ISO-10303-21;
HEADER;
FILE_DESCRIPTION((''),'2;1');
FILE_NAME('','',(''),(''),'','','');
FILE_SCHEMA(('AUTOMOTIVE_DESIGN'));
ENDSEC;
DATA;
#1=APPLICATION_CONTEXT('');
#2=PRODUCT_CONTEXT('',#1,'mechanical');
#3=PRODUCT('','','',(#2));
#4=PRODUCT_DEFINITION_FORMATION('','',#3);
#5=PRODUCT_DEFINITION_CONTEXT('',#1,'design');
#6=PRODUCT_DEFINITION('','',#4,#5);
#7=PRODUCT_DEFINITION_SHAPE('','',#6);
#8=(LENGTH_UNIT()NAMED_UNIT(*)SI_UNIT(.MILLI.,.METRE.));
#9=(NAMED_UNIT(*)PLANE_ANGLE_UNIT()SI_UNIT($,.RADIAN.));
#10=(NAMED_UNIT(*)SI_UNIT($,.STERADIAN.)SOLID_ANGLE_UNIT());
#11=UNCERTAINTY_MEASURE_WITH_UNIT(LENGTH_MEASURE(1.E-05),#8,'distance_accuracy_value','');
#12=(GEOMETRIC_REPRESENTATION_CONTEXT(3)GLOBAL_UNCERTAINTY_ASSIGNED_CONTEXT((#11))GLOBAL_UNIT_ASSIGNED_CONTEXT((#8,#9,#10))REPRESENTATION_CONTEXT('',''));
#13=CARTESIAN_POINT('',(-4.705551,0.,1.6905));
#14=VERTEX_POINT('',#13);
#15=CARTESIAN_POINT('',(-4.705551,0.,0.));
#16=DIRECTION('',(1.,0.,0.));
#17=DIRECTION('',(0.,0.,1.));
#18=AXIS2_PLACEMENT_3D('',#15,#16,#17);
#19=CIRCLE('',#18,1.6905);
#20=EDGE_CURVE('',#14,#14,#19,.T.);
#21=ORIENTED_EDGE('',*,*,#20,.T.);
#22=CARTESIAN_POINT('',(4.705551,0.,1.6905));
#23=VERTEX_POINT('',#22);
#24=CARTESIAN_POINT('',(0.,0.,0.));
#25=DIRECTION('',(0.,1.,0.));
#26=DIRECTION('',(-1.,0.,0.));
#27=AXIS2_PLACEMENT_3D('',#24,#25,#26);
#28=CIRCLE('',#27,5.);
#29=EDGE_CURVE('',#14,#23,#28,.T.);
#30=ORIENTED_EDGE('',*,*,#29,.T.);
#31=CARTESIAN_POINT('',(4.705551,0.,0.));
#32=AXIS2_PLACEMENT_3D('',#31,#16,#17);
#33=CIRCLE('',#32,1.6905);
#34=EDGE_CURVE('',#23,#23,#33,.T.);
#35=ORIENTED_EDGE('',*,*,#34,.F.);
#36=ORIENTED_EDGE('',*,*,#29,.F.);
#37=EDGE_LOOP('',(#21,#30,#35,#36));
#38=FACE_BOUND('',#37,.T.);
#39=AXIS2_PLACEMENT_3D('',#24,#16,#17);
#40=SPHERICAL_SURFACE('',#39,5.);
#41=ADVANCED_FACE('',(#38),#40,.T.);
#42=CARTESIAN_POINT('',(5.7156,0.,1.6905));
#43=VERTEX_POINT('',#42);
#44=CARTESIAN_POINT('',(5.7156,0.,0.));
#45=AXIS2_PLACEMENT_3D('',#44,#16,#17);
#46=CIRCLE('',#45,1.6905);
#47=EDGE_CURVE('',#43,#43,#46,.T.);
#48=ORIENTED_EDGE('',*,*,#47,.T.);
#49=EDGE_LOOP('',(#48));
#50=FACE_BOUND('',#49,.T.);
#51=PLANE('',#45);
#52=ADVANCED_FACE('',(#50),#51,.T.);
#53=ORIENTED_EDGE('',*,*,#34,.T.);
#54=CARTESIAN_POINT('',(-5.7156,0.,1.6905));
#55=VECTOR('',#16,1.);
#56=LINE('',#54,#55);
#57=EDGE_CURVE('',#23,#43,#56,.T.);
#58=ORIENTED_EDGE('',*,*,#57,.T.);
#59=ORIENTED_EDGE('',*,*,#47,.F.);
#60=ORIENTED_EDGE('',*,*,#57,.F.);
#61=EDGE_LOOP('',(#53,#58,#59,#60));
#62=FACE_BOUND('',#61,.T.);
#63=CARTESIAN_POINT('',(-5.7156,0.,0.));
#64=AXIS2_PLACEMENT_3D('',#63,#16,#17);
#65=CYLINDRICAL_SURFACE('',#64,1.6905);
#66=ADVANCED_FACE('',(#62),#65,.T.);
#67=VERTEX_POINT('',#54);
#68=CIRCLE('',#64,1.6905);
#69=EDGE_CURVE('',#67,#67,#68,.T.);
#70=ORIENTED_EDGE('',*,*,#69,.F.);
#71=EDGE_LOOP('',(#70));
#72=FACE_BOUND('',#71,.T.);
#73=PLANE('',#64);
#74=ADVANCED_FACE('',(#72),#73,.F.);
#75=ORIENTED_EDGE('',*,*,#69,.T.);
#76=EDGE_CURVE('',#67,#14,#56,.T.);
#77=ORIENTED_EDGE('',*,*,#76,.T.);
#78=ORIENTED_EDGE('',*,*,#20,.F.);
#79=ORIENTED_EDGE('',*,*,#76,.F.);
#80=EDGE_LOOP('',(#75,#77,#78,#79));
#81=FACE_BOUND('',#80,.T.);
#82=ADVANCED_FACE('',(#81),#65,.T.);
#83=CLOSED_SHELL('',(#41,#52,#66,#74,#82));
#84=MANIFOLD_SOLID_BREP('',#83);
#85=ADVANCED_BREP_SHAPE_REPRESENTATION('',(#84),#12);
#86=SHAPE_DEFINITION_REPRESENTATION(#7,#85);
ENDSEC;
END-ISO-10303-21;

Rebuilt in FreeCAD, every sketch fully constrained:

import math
import FreeCAD as App
import Part
import Sketcher

doc = App.newDocument("Part")
body = doc.addObject("PartDesign::Body", "Body")

# Sketch on XZ plane
sketch1 = body.newObject("Sketcher::SketchObject", "Sketch")
sketch1.AttachmentSupport = (doc.getObject("XZ_Plane"), [""])
sketch1.MapMode = "FlatFace"
sketch1.addGeometry([
    Part.LineSegment(App.Vector(-5.7, 0, 0), App.Vector(-5.7, 1.7, 0)),  # 0
    Part.LineSegment(App.Vector(-5.7, 1.7, 0), App.Vector(-4.7, 1.7, 0)),  # 1
    Part.ArcOfCircle(Part.Circle(App.Vector(0, 0, 0), App.Vector(0, 0, 1), 5), math.radians(20), math.radians(160)),  # 2
    Part.LineSegment(App.Vector(4.7, 1.7, 0), App.Vector(5.7, 1.7, 0)),  # 3
    Part.LineSegment(App.Vector(5.7, 1.7, 0), App.Vector(5.7, 0, 0)),  # 4
    Part.LineSegment(App.Vector(5.7, 0, 0), App.Vector(-5.7, 0, 0)),  # 5
], False)
sketch1.addConstraint([
    Sketcher.Constraint("Coincident", 0, 2, 1, 1),
    Sketcher.Constraint("Coincident", 1, 2, 2, 2),
    Sketcher.Constraint("Coincident", 2, 1, 3, 1),
    Sketcher.Constraint("Coincident", 3, 2, 4, 1),
    Sketcher.Constraint("Coincident", 4, 2, 5, 1),
    Sketcher.Constraint("Coincident", 5, 2, 0, 1),
    Sketcher.Constraint("Vertical", 0),
    Sketcher.Constraint("Horizontal", 1),
    Sketcher.Constraint("Horizontal", 3),
    Sketcher.Constraint("Vertical", 4),
    Sketcher.Constraint("Horizontal", 5),
    Sketcher.Constraint("Coincident", 2, 3, -1, 1),
    Sketcher.Constraint("Symmetric", 4, 2, 5, 2, -1, 1),
    Sketcher.Constraint("Horizontal", 1, 2, 2, 1),
    Sketcher.Constraint("Radius", 2, 5.0),
    Sketcher.Constraint("DistanceX", 1, 1, 1, 2, 1.01),
    Sketcher.Constraint("DistanceX", 5, 2, 5, 1, 11.4312),
])
revolution = body.newObject("PartDesign::Revolution", "Revolution")
revolution.Profile = sketch1
revolution.ReferenceAxis = (sketch1, ["H_Axis"])
revolution.Angle = 360

doc.recompute()
